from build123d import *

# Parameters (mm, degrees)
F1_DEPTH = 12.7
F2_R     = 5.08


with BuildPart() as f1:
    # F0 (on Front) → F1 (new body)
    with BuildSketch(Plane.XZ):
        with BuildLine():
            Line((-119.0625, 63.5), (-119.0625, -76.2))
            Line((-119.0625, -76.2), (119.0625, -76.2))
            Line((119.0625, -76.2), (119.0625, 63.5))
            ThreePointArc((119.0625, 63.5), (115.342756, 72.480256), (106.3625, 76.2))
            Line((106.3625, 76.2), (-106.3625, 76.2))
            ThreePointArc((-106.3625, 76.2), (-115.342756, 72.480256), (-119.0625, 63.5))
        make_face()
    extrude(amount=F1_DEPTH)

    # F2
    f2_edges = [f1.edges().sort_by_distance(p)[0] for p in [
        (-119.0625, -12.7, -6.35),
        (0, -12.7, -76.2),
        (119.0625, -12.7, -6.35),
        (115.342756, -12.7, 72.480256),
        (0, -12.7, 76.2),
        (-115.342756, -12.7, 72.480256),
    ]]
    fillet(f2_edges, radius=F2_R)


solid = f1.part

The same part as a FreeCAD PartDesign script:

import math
import FreeCAD as App
import Part
import Sketcher
Q = App.Units.Quantity


def edges_at(feature, points):
    """Names of the edges that pass closest to the given points."""
    edges = feature.Shape.Edges
    near = lambda p: min(range(len(edges)), key=lambda i: edges[i].distToShape(Part.Vertex(*p))[0])
    return sorted({f"Edge{near(p) + 1}" for p in points})

doc = App.newDocument("Part")
body = doc.addObject("PartDesign::Body", "Body")

# Sketch on XZ plane
sketch1 = body.newObject("Sketcher::SketchObject", "Sketch")
sketch1.AttachmentSupport = (doc.getObject("XZ_Plane"), [""])
sketch1.MapMode = "FlatFace"
sketch1.addGeometry(Part.LineSegment(App.Vector(-119, 64, 0), App.Vector(-119, -76, 0)), False)
sketch1.addGeometry(Part.LineSegment(App.Vector(-119, -76, 0), App.Vector(119, -76, 0)), False)
sketch1.addGeometry(Part.LineSegment(App.Vector(119, -76, 0), App.Vector(119, 64, 0)), False)
sketch1.addGeometry(Part.ArcOfCircle(Part.Circle(App.Vector(106, 63, 0), App.Vector(0, 0, 1), 13), math.radians(0), math.radians(90)), False)
sketch1.addGeometry(Part.LineSegment(App.Vector(106, 76, 0), App.Vector(-106, 76, 0)), False)
sketch1.addGeometry(Part.ArcOfCircle(Part.Circle(App.Vector(-106, 63, 0), App.Vector(0, 0, 1), 13), math.radians(90), math.radians(180)), False)
sketch1.addConstraint(Sketcher.Constraint("Coincident", 0, 2, 1, 1))
sketch1.addConstraint(Sketcher.Constraint("Coincident", 1, 2, 2, 1))
sketch1.addConstraint(Sketcher.Constraint("Tangent", 2, 2, 3, 1))
sketch1.addConstraint(Sketcher.Constraint("Tangent", 3, 2, 4, 1))
sketch1.addConstraint(Sketcher.Constraint("Tangent", 4, 2, 5, 1))
sketch1.addConstraint(Sketcher.Constraint("Tangent", 5, 2, 0, 1))
sketch1.addConstraint(Sketcher.Constraint("Vertical", 0))
sketch1.addConstraint(Sketcher.Constraint("Horizontal", 1))
sketch1.addConstraint(Sketcher.Constraint("Vertical", 2))
sketch1.addConstraint(Sketcher.Constraint("Horizontal", 4))
sketch1.addConstraint(Sketcher.Constraint("Equal", 3, 5))
sketch1.addConstraint(Sketcher.Constraint("Radius", 3, Q("0.5 in")))
sketch1.addConstraint(Sketcher.Constraint("DistanceY", 0, 2, 0, 1, Q("5.5 in")))
sketch1.addConstraint(Sketcher.Constraint("DistanceY", 0, 2, -1, 1, Q("3 in")))
sketch1.addConstraint(Sketcher.Constraint("DistanceX", 1, 1, 1, 2, Q("9.375 in")))
sketch1.addConstraint(Sketcher.Constraint("DistanceX", -1, 1, 3, 3, Q("4.1875 in")))
pad1 = body.newObject("PartDesign::Pad", "Pad")
pad1.Profile = sketch1
pad1.Length = Q("0.5 in")
doc.recompute()

fillet = body.newObject("PartDesign::Fillet", "Fillet")
fillet.Base = (pad1, edges_at(pad1, [
    (-119.062, -12.7, -6.35),
    (0, -12.7, -76.2),
    (119.062, -12.7, -6.35),
    (115.343, -12.7, 72.48),
    (0, -12.7, 76.2),
    (-115.343, -12.7, 72.48),
]))
fillet.Radius = Q("0.2 in")

doc.recompute()
